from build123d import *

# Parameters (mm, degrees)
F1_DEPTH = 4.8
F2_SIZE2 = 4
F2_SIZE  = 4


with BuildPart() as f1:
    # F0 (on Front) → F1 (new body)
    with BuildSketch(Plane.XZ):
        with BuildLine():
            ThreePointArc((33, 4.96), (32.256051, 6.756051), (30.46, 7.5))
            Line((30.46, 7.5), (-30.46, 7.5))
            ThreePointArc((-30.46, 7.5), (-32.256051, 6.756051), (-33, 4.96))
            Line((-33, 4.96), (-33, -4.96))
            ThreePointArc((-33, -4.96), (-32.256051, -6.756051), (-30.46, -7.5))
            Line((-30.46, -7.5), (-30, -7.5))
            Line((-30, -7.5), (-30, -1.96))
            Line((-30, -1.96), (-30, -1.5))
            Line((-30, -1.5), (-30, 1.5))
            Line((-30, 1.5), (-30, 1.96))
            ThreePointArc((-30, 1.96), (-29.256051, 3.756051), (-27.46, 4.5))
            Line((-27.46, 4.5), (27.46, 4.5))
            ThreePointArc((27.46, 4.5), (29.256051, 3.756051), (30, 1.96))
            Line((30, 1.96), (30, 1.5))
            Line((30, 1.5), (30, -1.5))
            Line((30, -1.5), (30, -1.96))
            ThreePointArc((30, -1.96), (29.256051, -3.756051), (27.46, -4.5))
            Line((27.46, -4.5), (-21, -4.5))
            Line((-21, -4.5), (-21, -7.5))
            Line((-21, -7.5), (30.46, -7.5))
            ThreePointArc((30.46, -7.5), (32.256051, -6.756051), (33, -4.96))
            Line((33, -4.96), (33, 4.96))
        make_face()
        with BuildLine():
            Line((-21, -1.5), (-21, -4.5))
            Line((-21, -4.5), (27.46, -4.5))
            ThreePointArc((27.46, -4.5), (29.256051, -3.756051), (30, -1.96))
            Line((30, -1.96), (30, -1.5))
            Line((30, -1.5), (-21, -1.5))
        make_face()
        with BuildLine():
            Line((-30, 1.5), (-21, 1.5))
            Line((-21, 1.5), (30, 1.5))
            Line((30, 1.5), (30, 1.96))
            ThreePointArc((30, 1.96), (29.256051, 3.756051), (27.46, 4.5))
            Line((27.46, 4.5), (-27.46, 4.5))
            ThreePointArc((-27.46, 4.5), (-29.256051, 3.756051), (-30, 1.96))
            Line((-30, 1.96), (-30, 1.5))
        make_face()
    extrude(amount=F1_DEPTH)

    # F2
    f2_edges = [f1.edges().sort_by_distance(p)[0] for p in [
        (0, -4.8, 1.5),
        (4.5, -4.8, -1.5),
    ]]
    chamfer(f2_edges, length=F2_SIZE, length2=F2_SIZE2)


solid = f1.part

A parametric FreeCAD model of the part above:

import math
import FreeCAD as App
import Part
import Sketcher

V = App.Vector
Q = App.Units.Quantity


def edges_at(feature, points):
    """Names of the edges that pass closest to the given points."""
    edges = feature.Shape.Edges
    near = lambda p: min(range(len(edges)), key=lambda i: edges[i].distToShape(Part.Vertex(*p))[0])
    return sorted({f"Edge{near(p) + 1}" for p in points})

doc = App.newDocument("Part")
body = doc.addObject("PartDesign::Body", "Body")

# Sketch on XZ plane
sketch1 = body.newObject("Sketcher::SketchObject", "Sketch")
sketch1.AttachmentSupport = (doc.getObject("XZ_Plane"), [""])
sketch1.MapMode = "FlatFace"
sketch1.addGeometry([
    Part.ArcOfCircle(Part.Circle(V(30.46, 4.96, 0), V(0, 0, 1), 2.54), math.radians(0), math.radians(90)),  # 0
    Part.LineSegment(V(30.46, 7.5, 0), V(-30.46, 7.5, 0)),  # 1
    Part.ArcOfCircle(Part.Circle(V(-30.46, 4.96, 0), V(0, 0, 1), 2.54), math.radians(90), math.radians(180)),  # 2
    Part.LineSegment(V(-33, 4.96, 0), V(-33, -4.96, 0)),  # 3
    Part.ArcOfCircle(Part.Circle(V(-30.46, -4.96, 0), V(0, 0, 1), 2.54), math.radians(-180), math.radians(-90)),  # 4
    Part.LineSegment(V(-30.46, -7.5, 0), V(-30, -7.5, 0)),  # 5
    Part.LineSegment(V(-30, -7.5, 0), V(-30, 1.5, 0)),  # 6
    Part.LineSegment(V(-30, 1.5, 0), V(30, 1.5, 0)),  # 7
    Part.LineSegment(V(30, 1.5, 0), V(30, -1.5, 0)),  # 8
    Part.LineSegment(V(30, -1.5, 0), V(-21, -1.5, 0)),  # 9
    Part.LineSegment(V(-21, -1.5, 0), V(-21, -7.5, 0)),  # 10
    Part.LineSegment(V(-21, -7.5, 0), V(30.46, -7.5, 0)),  # 11
    Part.ArcOfCircle(Part.Circle(V(30.46, -4.96, 0), V(0, 0, 1), 2.54), math.radians(-90), math.radians(0)),  # 12
    Part.LineSegment(V(33, -4.96, 0), V(33, 4.96, 0)),  # 13
], False)
sketch1.addConstraint([
    Sketcher.Constraint("Tangent", 0, 2, 1, 1),
    Sketcher.Constraint("Tangent", 1, 2, 2, 1),
    Sketcher.Constraint("Tangent", 2, 2, 3, 1),
    Sketcher.Constraint("Tangent", 3, 2, 4, 1),
    Sketcher.Constraint("Tangent", 4, 2, 5, 1),
    Sketcher.Constraint("Coincident", 5, 2, 6, 1),
    Sketcher.Constraint("Coincident", 6, 2, 7, 1),
    Sketcher.Constraint("Coincident", 7, 2, 8, 1),
    Sketcher.Constraint("Coincident", 8, 2, 9, 1),
    Sketcher.Constraint("Coincident", 9, 2, 10, 1),
    Sketcher.Constraint("Coincident", 10, 2, 11, 1),
    Sketcher.Constraint("Tangent", 11, 2, 12, 1),
    Sketcher.Constraint("Tangent", 12, 2, 13, 1),
    Sketcher.Constraint("Tangent", 13, 2, 0, 1),
    Sketcher.Constraint("Horizontal", 1),
    Sketcher.Constraint("Vertical", 3),
    Sketcher.Constraint("Horizontal", 5),
    Sketcher.Constraint("Vertical", 6),
    Sketcher.Constraint("Horizontal", 7),
    Sketcher.Constraint("Vertical", 8),
    Sketcher.Constraint("Horizontal", 9),
    Sketcher.Constraint("Vertical", 10),
    Sketcher.Constraint("Horizontal", 11),
    Sketcher.Constraint("Vertical", 13),
    Sketcher.Constraint("Equal", 0, 2),
    Sketcher.Constraint("Equal", 2, 4),
    Sketcher.Constraint("Equal", 4, 12),
    Sketcher.Constraint("Symmetric", 0, 3, 4, 3, -1, 1),
    Sketcher.Constraint("Symmetric", 6, 2, 8, 2, -1, 1),
    Sketcher.Constraint("Horizontal", 4, 3, 12, 3),
    Sketcher.Constraint("DistanceX", 7, 1, 7, 2, Q("60 mm")),
    Sketcher.Constraint("DistanceX", 9, 2, 9, 1, Q("51 mm")),
    Sketcher.Constraint("DistanceY", 6, 1, 6, 2, Q("9 mm")),
    Sketcher.Constraint("DistanceY", 8, 2, 8, 1, Q("3 mm")),
    Sketcher.Constraint("Radius", 0, Q("2.540001 mm")),
    Sketcher.Constraint("DistanceX", 2, 2, -1, 1, Q("33 mm")),
])
pad1 = body.newObject("PartDesign::Pad", "Pad")
pad1.Profile = sketch1
pad1.Length = 4.8
doc.recompute()

chamfer = body.newObject("PartDesign::Chamfer", "Chamfer")
chamfer.Base = (pad1, edges_at(pad1, [(0, -4.8, 1.5), (4.5, -4.8, -1.5)]))
chamfer.ChamferType = "Two distances"
chamfer.Size = 4
chamfer.Size2 = 4

doc.recompute()
